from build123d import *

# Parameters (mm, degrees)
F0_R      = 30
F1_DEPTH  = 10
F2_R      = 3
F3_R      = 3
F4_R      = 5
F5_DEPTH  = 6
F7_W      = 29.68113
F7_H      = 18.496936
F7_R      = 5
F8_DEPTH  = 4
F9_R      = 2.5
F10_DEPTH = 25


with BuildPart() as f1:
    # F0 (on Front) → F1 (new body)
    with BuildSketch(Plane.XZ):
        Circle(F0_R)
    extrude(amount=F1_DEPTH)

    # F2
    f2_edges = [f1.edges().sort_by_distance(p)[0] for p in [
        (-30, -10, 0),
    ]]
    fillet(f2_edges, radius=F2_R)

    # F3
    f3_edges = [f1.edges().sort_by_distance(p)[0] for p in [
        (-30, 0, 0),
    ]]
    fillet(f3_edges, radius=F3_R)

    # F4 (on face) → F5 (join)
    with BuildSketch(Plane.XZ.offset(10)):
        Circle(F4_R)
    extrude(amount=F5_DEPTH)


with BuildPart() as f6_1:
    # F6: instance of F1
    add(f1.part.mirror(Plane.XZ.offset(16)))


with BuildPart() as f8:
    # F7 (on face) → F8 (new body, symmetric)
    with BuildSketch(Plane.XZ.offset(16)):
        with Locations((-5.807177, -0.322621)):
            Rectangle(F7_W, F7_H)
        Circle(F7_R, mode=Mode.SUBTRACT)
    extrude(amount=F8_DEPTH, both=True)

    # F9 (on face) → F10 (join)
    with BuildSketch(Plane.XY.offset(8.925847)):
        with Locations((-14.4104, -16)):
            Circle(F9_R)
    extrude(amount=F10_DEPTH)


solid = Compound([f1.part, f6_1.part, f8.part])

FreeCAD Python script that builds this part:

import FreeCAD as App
import Part
import Sketcher

V = App.Vector
Q = App.Units.Quantity


def edges_at(feature, points):
    """Names of the edges that pass closest to the given points."""
    edges = feature.Shape.Edges
    near = lambda p: min(range(len(edges)), key=lambda i: edges[i].distToShape(Part.Vertex(*p))[0])
    return sorted({f"Edge{near(p) + 1}" for p in points})


def add_polygon(sketch, points):
    """Adds a closed chain of lines whose ends are joined by coincident constraints."""
    first, n = sketch.GeometryCount, len(points)
    for a, b in zip(points, points[1:] + points[:1]):
        sketch.addGeometry(Part.LineSegment(App.Vector(*a, 0), App.Vector(*b, 0)), False)
    for i in range(n):
        sketch.addConstraint(Sketcher.Constraint("Coincident", first + i, 2, first + (i + 1) % n, 1))

doc = App.newDocument("Part")
params = doc.addObject("Spreadsheet::Sheet", "Params")
for row, (alias, value) in enumerate([
    ("sketch1_diameter", "60 mm"),
    ("pad1_length", "10 mm"),
    ("fillet_radius", "3 mm"),
    ("fillet2_radius", "3 mm"),
    ("sketch2_diameter", "10 mm"),
    ("pad2_length", "6 mm"),
    ("sketch3_diameter", "10 mm"),
    ("pad3_length", "8 mm"),
    ("sketch4_diameter", "5 mm"),
    ("pad4_length", "25 mm"),
], start=1):
    params.set(f"A{row}", alias)
    params.set(f"B{row}", "=" + value)
    params.setAlias(f"B{row}", alias)

body = doc.addObject("PartDesign::Body", "Body")

# Sketch on XZ plane
sketch1 = body.newObject("Sketcher::SketchObject", "Sketch")
sketch1.AttachmentSupport = (doc.getObject("XZ_Plane"), [""])
sketch1.MapMode = "FlatFace"
sketch1.addGeometry(Part.Circle(V(0, 0, 0), V(0, 0, 1), 30), False)
sketch1.addConstraint([
    Sketcher.Constraint("Coincident", 0, 3, -1, 1),
    Sketcher.Constraint("Diameter", 0, Q("60 mm")),
])
sketch1.setExpression("Constraints[1]", "Params.sketch1_diameter")
pad1 = body.newObject("PartDesign::Pad", "Pad")
pad1.Profile = sketch1
pad1.setExpression("Length", "Params.pad1_length")
doc.recompute()

fillet = body.newObject("PartDesign::Fillet", "Fillet")
fillet.Base = (pad1, edges_at(pad1, [(-30, -10, 0)]))
fillet.setExpression("Radius", "Params.fillet_radius")
doc.recompute()

fillet2 = body.newObject("PartDesign::Fillet", "Fillet001")
fillet2.Base = (fillet, edges_at(fillet, [(-30, 0, 0)]))
fillet2.setExpression("Radius", "Params.fillet2_radius")

# Sketch on XZ plane
sketch2 = body.newObject("Sketcher::SketchObject", "Sketch001")
sketch2.AttachmentSupport = (doc.getObject("XZ_Plane"), [""])
sketch2.MapMode = "FlatFace"
sketch2.AttachmentOffset = App.Placement(V(0, 0, 10), App.Rotation())
sketch2.addGeometry(Part.Circle(V(0, 0, 0), V(0, 0, 1), 5), False)
sketch2.addConstraint([
    Sketcher.Constraint("Coincident", 0, 3, -1, 1),
    Sketcher.Constraint("Diameter", 0, Q("10 mm")),
])
sketch2.setExpression("Constraints[1]", "Params.sketch2_diameter")
pad2 = body.newObject("PartDesign::Pad", "Pad001")
pad2.Profile = sketch2
pad2.setExpression("Length", "Params.pad2_length")
body2 = doc.addObject("PartDesign::Body", "Body001")
doc.recompute()

mirroring = doc.addObject("Part::Mirroring", "Mirroring")
mirroring.Source = body
mirroring.Base = V(0, -16, 0)
mirroring.Normal = V(0, -1, 0)
body2.BaseFeature = mirroring
doc.recompute()
body3 = doc.addObject("PartDesign::Body", "Body002")

# Sketch on XZ plane
sketch3 = body3.newObject("Sketcher::SketchObject", "Sketch002")
sketch3.AttachmentSupport = (doc.getObject("XZ_Plane002"), [""])
sketch3.MapMode = "FlatFace"
sketch3.AttachmentOffset = App.Placement(V(0, 0, 16), App.Rotation())
add_polygon(sketch3, [(-21, 9), (-21, -10), (9, -10), (9, 9)])  # lines 0-3
sketch3.addGeometry(Part.Circle(V(0, 0, 0), V(0, 0, 1), 5), False)  # 4
sketch3.addConstraint([
    Sketcher.Constraint("Vertical", 0),
    Sketcher.Constraint("Horizontal", 1),
    Sketcher.Constraint("Vertical", 2),
    Sketcher.Constraint("Horizontal", 3),
    Sketcher.Constraint("Coincident", 4, 3, -1, 1),
    Sketcher.Constraint("Diameter", 4, Q("10 mm")),
    Sketcher.Constraint("DistanceX", 1, 1, 1, 2, Q("29.68113 mm")),
    Sketcher.Constraint("DistanceY", 0, 2, 0, 1, Q("18.496936 mm")),
    Sketcher.Constraint("DistanceY", 0, 2, -1, 1, Q("9.571089 mm")),
    Sketcher.Constraint("DistanceX", 0, 2, -1, 1, Q("20.647742 mm")),
])
sketch3.setExpression("Constraints[9]", "Params.sketch3_diameter")
pad3 = body3.newObject("PartDesign::Pad", "Pad002")
pad3.Profile = sketch3
pad3.setExpression("Length", "Params.pad3_length")
pad3.Midplane = True

# Sketch on XY plane
sketch4 = body3.newObject("Sketcher::SketchObject", "Sketch003")
sketch4.AttachmentSupport = (doc.getObject("XY_Plane002"), [""])
sketch4.MapMode = "FlatFace"
sketch4.AttachmentOffset = App.Placement(V(0, 0, 8.925847), App.Rotation())
sketch4.addGeometry(Part.Circle(V(-14.4, -16, 0), V(0, 0, 1), 2.5), False)
sketch4.addConstraint([
    Sketcher.Constraint("Diameter", 0, Q("5 mm")),
    Sketcher.Constraint("DistanceY", 0, 3, -1, 1, Q("16 mm")),
    Sketcher.Constraint("DistanceX", 0, 3, -1, 1, Q("14.4104 mm")),
])
sketch4.setExpression("Constraints[0]", "Params.sketch4_diameter")
pad4 = body3.newObject("PartDesign::Pad", "Pad003")
pad4.Profile = sketch4
pad4.setExpression("Length", "Params.pad4_length")
mirroring.Visibility = False

doc.recompute()
